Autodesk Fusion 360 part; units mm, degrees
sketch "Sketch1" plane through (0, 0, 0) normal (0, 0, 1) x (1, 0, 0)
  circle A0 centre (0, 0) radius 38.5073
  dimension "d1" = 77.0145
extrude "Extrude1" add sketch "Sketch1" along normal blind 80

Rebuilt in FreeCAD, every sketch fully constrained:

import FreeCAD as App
import Part
import Sketcher

doc = App.newDocument("Part")
body = doc.addObject("PartDesign::Body", "Body")

# Sketch on XY plane
sketch1 = doc.addObject("Sketcher::SketchObject", "Sketch")
body.addObject(sketch1)
sketch1.AttachmentSupport = (doc.XY_Plane, [""])
sketch1.MapMode = "FlatFace"
sketch1.addGeometry(Part.Circle(App.Vector(0, 0, 0), App.Vector(0, 0, 1), 39), False)
sketch1.addConstraint(Sketcher.Constraint("Coincident", 0, 3, -1, 1))
sketch1.addConstraint(Sketcher.Constraint("Diameter", 0, 77.0146))
pad1 = doc.addObject("PartDesign::Pad", "Pad")
body.addObject(pad1)
pad1.Profile = sketch1
pad1.Length = 80

doc.recompute()
